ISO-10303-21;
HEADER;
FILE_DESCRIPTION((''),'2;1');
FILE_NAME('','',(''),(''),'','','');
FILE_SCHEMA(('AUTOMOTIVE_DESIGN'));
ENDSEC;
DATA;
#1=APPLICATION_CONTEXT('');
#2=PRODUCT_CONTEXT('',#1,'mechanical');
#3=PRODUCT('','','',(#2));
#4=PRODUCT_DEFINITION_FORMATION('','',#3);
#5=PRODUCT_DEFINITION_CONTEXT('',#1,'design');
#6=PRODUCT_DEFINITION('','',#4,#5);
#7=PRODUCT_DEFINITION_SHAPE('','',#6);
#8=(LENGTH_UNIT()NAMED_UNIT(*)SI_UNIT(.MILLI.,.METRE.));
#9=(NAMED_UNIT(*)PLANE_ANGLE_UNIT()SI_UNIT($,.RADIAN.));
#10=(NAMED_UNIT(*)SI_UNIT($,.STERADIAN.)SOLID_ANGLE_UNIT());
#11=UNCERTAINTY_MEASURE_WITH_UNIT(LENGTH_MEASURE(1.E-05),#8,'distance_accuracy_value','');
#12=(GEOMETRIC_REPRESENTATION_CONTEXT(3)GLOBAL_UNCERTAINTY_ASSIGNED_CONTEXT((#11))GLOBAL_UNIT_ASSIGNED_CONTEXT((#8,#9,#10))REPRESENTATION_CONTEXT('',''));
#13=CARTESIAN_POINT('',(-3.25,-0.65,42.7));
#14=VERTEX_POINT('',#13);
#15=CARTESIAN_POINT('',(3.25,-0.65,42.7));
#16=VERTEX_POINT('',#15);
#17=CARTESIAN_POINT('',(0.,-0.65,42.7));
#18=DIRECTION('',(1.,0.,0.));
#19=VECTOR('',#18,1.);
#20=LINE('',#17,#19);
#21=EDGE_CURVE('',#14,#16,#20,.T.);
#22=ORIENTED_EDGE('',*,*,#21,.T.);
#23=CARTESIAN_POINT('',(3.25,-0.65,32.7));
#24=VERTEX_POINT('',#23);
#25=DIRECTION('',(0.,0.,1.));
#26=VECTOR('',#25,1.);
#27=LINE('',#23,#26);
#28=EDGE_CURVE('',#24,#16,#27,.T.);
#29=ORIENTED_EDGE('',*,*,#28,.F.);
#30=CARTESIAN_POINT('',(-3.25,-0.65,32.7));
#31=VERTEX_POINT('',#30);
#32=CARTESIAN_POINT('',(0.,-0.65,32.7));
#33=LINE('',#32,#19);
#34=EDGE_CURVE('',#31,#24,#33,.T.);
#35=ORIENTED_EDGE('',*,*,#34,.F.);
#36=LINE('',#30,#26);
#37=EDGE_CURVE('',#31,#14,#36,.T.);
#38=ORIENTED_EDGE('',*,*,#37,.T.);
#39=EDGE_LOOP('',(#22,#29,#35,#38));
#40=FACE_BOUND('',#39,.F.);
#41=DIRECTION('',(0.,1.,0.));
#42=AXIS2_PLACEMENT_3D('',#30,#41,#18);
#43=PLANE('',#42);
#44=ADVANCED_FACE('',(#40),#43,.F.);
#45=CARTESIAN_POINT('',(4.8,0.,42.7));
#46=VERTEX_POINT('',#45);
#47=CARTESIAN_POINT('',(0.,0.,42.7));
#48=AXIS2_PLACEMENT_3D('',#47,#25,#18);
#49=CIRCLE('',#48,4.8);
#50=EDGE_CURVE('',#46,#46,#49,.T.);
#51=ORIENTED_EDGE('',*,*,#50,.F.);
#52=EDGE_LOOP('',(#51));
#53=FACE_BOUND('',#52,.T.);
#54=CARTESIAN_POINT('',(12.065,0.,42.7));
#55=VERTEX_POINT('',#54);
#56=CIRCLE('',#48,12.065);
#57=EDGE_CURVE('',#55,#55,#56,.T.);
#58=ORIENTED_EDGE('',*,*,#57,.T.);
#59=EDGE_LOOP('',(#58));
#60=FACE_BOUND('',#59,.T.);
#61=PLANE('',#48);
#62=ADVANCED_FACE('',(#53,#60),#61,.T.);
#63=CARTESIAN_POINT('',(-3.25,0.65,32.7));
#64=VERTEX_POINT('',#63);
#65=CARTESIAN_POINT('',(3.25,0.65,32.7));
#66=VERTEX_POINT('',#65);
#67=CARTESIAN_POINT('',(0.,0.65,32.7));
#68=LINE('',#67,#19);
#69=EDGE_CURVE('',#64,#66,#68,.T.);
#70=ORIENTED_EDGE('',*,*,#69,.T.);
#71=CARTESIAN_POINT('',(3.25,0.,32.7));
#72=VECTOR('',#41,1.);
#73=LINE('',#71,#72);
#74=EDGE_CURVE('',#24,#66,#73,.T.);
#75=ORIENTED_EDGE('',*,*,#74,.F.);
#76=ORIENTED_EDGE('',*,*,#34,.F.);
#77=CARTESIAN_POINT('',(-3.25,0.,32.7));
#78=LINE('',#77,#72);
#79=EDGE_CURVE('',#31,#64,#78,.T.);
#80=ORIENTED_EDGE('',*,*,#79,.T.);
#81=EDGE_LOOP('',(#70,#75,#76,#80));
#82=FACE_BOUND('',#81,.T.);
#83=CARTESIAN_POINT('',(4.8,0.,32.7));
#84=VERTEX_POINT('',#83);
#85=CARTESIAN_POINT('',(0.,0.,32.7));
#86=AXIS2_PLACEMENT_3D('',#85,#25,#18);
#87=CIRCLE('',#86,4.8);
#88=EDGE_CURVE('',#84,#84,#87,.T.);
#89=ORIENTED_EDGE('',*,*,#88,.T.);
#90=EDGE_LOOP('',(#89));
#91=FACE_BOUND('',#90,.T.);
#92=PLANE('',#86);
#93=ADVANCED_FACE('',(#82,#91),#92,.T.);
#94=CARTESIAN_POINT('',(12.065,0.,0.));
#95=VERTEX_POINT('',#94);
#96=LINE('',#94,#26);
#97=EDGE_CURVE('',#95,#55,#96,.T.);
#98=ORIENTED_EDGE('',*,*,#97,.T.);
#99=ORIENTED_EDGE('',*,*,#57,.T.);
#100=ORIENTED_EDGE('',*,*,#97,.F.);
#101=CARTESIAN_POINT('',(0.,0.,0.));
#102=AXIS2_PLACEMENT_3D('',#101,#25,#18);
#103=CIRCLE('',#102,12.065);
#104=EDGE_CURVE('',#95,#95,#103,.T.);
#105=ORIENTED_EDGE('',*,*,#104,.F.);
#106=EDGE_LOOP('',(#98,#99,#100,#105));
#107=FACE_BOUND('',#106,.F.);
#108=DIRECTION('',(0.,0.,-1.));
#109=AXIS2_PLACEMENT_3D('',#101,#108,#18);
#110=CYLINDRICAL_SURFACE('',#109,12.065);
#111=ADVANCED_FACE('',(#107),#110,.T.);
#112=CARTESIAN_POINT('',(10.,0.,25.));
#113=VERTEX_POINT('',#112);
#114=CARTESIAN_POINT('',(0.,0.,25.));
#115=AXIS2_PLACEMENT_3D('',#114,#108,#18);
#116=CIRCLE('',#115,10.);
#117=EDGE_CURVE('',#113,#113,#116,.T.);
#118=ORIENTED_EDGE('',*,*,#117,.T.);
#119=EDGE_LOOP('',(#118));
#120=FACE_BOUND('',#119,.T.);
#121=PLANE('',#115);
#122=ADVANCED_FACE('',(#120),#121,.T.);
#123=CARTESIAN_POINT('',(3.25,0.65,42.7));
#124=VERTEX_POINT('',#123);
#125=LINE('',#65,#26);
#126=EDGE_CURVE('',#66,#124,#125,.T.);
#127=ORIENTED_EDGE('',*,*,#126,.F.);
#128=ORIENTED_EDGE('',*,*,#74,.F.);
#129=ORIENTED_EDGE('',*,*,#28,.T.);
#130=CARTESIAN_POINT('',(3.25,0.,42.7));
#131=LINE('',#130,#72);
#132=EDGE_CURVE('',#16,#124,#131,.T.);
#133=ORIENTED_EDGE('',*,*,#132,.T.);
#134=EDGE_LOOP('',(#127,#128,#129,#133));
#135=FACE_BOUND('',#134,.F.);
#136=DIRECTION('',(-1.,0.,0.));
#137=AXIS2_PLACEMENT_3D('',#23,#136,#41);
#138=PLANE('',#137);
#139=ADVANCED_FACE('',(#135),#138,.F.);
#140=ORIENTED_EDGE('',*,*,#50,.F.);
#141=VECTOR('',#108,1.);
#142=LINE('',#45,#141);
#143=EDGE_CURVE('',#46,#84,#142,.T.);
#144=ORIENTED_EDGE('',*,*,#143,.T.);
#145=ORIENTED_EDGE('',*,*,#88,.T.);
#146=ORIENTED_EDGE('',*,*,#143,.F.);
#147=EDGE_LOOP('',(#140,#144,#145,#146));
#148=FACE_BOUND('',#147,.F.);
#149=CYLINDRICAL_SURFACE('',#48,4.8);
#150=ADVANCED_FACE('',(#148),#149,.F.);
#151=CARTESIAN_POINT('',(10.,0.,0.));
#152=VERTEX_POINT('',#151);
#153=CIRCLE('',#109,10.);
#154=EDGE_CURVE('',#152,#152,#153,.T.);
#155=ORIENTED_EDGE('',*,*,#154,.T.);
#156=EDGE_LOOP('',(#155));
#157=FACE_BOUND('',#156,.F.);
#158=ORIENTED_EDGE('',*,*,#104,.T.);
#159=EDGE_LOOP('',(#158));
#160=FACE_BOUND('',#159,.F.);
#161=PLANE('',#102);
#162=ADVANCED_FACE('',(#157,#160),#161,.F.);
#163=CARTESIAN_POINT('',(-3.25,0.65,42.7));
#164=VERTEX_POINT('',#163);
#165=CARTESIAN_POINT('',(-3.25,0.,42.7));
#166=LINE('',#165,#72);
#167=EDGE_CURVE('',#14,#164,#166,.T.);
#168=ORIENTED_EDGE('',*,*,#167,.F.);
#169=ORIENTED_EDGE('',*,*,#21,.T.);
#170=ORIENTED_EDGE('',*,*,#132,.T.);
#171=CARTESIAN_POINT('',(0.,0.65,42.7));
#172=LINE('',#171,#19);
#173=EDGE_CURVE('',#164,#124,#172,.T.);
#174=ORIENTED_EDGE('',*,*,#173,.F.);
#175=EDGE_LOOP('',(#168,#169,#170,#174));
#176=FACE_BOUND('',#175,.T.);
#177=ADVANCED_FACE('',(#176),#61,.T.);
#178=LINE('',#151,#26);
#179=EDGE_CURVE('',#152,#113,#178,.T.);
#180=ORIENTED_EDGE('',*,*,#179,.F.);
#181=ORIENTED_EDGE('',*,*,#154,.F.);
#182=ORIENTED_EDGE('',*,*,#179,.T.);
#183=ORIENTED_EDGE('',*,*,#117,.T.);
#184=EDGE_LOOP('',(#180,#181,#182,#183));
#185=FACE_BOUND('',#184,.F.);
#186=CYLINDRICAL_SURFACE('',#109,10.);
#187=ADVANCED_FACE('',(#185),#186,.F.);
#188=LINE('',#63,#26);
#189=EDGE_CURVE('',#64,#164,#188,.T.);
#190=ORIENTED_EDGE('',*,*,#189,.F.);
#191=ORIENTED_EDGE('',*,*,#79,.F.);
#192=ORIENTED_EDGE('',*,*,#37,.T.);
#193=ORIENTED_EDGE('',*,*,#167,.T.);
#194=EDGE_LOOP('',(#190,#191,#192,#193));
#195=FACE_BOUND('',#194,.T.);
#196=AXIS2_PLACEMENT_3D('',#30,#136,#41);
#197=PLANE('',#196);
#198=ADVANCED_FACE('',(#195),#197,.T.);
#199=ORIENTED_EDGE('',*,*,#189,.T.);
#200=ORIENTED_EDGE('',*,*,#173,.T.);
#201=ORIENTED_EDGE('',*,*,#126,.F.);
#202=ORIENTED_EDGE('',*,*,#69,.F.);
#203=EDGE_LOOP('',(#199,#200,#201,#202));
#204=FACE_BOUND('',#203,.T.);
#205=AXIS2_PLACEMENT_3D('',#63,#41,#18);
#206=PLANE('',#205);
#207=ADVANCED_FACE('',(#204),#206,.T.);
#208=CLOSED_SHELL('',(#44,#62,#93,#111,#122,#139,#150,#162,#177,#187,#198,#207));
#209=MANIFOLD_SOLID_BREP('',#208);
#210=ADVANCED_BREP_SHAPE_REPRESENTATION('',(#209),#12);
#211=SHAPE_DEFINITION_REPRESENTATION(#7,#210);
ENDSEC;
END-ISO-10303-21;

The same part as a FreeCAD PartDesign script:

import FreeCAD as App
import Part
import Sketcher
from FreeCAD import Vector
Q = App.Units.Quantity

doc = App.newDocument("Part")
body = doc.addObject("PartDesign::Body", "Body")

# Sketch on XY plane
sketch1 = doc.addObject("Sketcher::SketchObject", "Sketch")
body.addObject(sketch1)
sketch1.AttachmentSupport = (doc.XY_Plane, [""])
sketch1.MapMode = "FlatFace"
sketch1.addGeometry(Part.Circle(Vector(0, 0, 0), Vector(0, 0, 1), 12), False)
sketch1.addConstraint(Sketcher.Constraint("Coincident", 0, 3, -1, 1))
sketch1.addConstraint(Sketcher.Constraint("Diameter", 0, Q("24.13 mm")))
pad1 = doc.addObject("PartDesign::Pad", "Pad")
body.addObject(pad1)
pad1.Profile = sketch1
pad1.Length = 42.7

# Sketch on XY plane
sketch2 = doc.addObject("Sketcher::SketchObject", "Sketch001")
body.addObject(sketch2)
sketch2.AttachmentSupport = (doc.XY_Plane, [""])
sketch2.MapMode = "FlatFace"
sketch2.AttachmentOffset = App.Placement(Vector(0, 0, 42.7), App.Rotation())
sketch2.addGeometry(Part.Circle(Vector(0, 0, 0), Vector(0, 0, 1), 4.8), False)
sketch2.addConstraint(Sketcher.Constraint("Coincident", 0, 3, -1, 1))
sketch2.addConstraint(Sketcher.Constraint("Diameter", 0, Q("9.6 mm")))
pocket1 = doc.addObject("PartDesign::Pocket", "Pocket")
body.addObject(pocket1)
pocket1.Profile = sketch2
pocket1.Length = 10

# Sketch on XY plane
sketch3 = doc.addObject("Sketcher::SketchObject", "Sketch002")
body.addObject(sketch3)
sketch3.AttachmentSupport = (doc.XY_Plane, [""])
sketch3.MapMode = "FlatFace"
sketch3.AttachmentOffset = App.Placement(Vector(0, 0, 32.7), App.Rotation())
sketch3.addGeometry(Part.LineSegment(Vector(-3.2, 0.7, 0), Vector(-3.2, -0.7, 0)), False)
sketch3.addGeometry(Part.LineSegment(Vector(-3.2, -0.7, 0), Vector(3.2, -0.7, 0)), False)
sketch3.addGeometry(Part.LineSegment(Vector(3.2, -0.7, 0), Vector(3.2, 0.7, 0)), False)
sketch3.addGeometry(Part.LineSegment(Vector(3.2, 0.7, 0), Vector(-3.2, 0.7, 0)), False)
sketch3.addConstraint(Sketcher.Constraint("Coincident", 0, 2, 1, 1))
sketch3.addConstraint(Sketcher.Constraint("Coincident", 1, 2, 2, 1))
sketch3.addConstraint(Sketcher.Constraint("Coincident", 2, 2, 3, 1))
sketch3.addConstraint(Sketcher.Constraint("Coincident", 3, 2, 0, 1))
sketch3.addConstraint(Sketcher.Constraint("Vertical", 0))
sketch3.addConstraint(Sketcher.Constraint("Horizontal", 1))
sketch3.addConstraint(Sketcher.Constraint("Vertical", 2))
sketch3.addConstraint(Sketcher.Constraint("Horizontal", 3))
sketch3.addConstraint(Sketcher.Constraint("Symmetric", 0, 2, 2, 2, -1, 1))
sketch3.addConstraint(Sketcher.Constraint("DistanceX", 1, 1, 1, 2, Q("6.5 mm")))
sketch3.addConstraint(Sketcher.Constraint("DistanceY", 0, 2, 0, 1, Q("1.3 mm")))
pad2 = doc.addObject("PartDesign::Pad", "Pad001")
body.addObject(pad2)
pad2.Profile = sketch3
pad2.Length = 10

# Sketch on XY plane
sketch4 = doc.addObject("Sketcher::SketchObject", "Sketch003")
body.addObject(sketch4)
sketch4.AttachmentSupport = (doc.XY_Plane, [""])
sketch4.MapMode = "FlatFace"
sketch4.addGeometry(Part.Circle(Vector(0, 0, 0), Vector(0, 0, 1), 10), False)
sketch4.addConstraint(Sketcher.Constraint("Coincident", 0, 3, -1, 1))
sketch4.addConstraint(Sketcher.Constraint("Diameter", 0, Q("20 mm")))
pocket2 = doc.addObject("PartDesign::Pocket", "Pocket001")
body.addObject(pocket2)
pocket2.Profile = sketch4
pocket2.Length = 25
pocket2.Reversed = True

doc.recompute()
